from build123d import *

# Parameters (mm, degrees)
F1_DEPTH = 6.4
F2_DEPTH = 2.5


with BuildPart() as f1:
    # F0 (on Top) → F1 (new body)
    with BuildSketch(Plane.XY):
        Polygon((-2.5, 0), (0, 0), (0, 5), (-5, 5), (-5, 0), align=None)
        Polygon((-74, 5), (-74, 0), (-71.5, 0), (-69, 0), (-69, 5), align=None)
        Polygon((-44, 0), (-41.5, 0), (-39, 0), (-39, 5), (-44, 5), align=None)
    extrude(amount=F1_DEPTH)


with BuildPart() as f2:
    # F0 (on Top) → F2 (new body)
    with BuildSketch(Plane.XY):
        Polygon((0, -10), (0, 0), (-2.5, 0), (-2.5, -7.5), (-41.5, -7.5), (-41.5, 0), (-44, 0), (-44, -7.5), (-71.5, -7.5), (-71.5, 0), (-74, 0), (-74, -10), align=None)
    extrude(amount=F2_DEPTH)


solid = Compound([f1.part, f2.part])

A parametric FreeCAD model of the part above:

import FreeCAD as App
import Part
import Sketcher

V = App.Vector


def add_polygon(sketch, points):
    """Adds a closed chain of lines whose ends are joined by coincident constraints."""
    first, n = sketch.GeometryCount, len(points)
    for a, b in zip(points, points[1:] + points[:1]):
        sketch.addGeometry(Part.LineSegment(App.Vector(*a, 0), App.Vector(*b, 0)), False)
    for i in range(n):
        sketch.addConstraint(Sketcher.Constraint("Coincident", first + i, 2, first + (i + 1) % n, 1))

doc = App.newDocument("Part")
body = doc.addObject("PartDesign::Body", "Body")
body.AllowCompound = True

sketch1 = body.newObject("Sketcher::SketchObject", "Sketch")
sketch1.AttachmentSupport = (doc.getObject("XY_Plane"), [""])
sketch1.MapMode = "FlatFace"
add_polygon(sketch1, [(0, 0), (0, 5), (-5, 5), (-5, 0)])
add_polygon(sketch1, [(-74, 5), (-74, 0), (-69, 0), (-69, 5)])
add_polygon(sketch1, [(-44, 0), (-39, 0), (-39, 5), (-44, 5)])
sketch1.addConstraint(Sketcher.Constraint("Vertical", 0))
sketch1.addConstraint(Sketcher.Constraint("Horizontal", 1))
sketch1.addConstraint(Sketcher.Constraint("Vertical", 2))
sketch1.addConstraint(Sketcher.Constraint("Horizontal", 3))
sketch1.addConstraint(Sketcher.Constraint("Vertical", 4))
sketch1.addConstraint(Sketcher.Constraint("Horizontal", 5))
sketch1.addConstraint(Sketcher.Constraint("Vertical", 6))
sketch1.addConstraint(Sketcher.Constraint("Horizontal", 7))
sketch1.addConstraint(Sketcher.Constraint("Horizontal", 8))
sketch1.addConstraint(Sketcher.Constraint("Vertical", 9))
sketch1.addConstraint(Sketcher.Constraint("Horizontal", 10))
sketch1.addConstraint(Sketcher.Constraint("Vertical", 11))
sketch1.addConstraint(Sketcher.Constraint("Coincident", 3, 2, -1, 1))
sketch1.addConstraint(Sketcher.Constraint("PointOnObject", 4, 2, -1))
sketch1.addConstraint(Sketcher.Constraint("PointOnObject", 8, 2, -1))
sketch1.addConstraint(Sketcher.Constraint("Horizontal", 1, 2, 6, 2))
sketch1.addConstraint(Sketcher.Constraint("Horizontal", 7, 2, 9, 2))
sketch1.addConstraint(Sketcher.Constraint("Equal", 3, 5))
sketch1.addConstraint(Sketcher.Constraint("Equal", 7, 8))
sketch1.addConstraint(Sketcher.Constraint("Equal", 10, 0))
sketch1.addConstraint(Sketcher.Constraint("DistanceX", 1, 2, 1, 1, 5.0))
sketch1.addConstraint(Sketcher.Constraint("DistanceX", 4, 2, -1, 1, 74.0))
sketch1.addConstraint(Sketcher.Constraint("DistanceX", 8, 2, -1, 1, 39.0))
pad1 = body.newObject("PartDesign::Pad", "Pad")
pad1.Profile = sketch1
pad1.Length = 6.4
body2 = doc.addObject("PartDesign::Body", "Body001")

sketch2 = body2.newObject("Sketcher::SketchObject", "Sketch001")
sketch2.AttachmentSupport = (doc.getObject("XY_Plane001"), [""])
sketch2.MapMode = "FlatFace"
add_polygon(sketch2, [(0, -10), (0, 0), (-2.5, 0), (-2.5, -7.5), (-41.5, -7.5), (-41.5, 0), (-44, 0), (-44, -7.5), (-71.5, -7.5), (-71.5, 0), (-74, 0), (-74, -10)])
sketch2.addConstraint(Sketcher.Constraint("Vertical", 0))
sketch2.addConstraint(Sketcher.Constraint("Horizontal", 1))
sketch2.addConstraint(Sketcher.Constraint("Vertical", 2))
sketch2.addConstraint(Sketcher.Constraint("Horizontal", 3))
sketch2.addConstraint(Sketcher.Constraint("Vertical", 4))
sketch2.addConstraint(Sketcher.Constraint("Horizontal", 5))
sketch2.addConstraint(Sketcher.Constraint("Vertical", 6))
sketch2.addConstraint(Sketcher.Constraint("Horizontal", 7))
sketch2.addConstraint(Sketcher.Constraint("Vertical", 8))
sketch2.addConstraint(Sketcher.Constraint("Horizontal", 9))
sketch2.addConstraint(Sketcher.Constraint("Vertical", 10))
sketch2.addConstraint(Sketcher.Constraint("Horizontal", 11))
sketch2.addConstraint(Sketcher.Constraint("Coincident", 0, 2, -1, 1))
sketch2.addConstraint(Sketcher.Constraint("PointOnObject", 4, 2, -1))
sketch2.addConstraint(Sketcher.Constraint("PointOnObject", 8, 2, -1))
sketch2.addConstraint(Sketcher.Constraint("Horizontal", 3, 2, 6, 2))
sketch2.addConstraint(Sketcher.Constraint("Equal", 1, 5))
sketch2.addConstraint(Sketcher.Constraint("Equal", 5, 9))
sketch2.addConstraint(Sketcher.Constraint("DistanceX", 3, 2, 3, 1, 39.0))
sketch2.addConstraint(Sketcher.Constraint("DistanceX", 11, 1, 11, 2, 74.0))
sketch2.addConstraint(Sketcher.Constraint("DistanceY", 0, 1, 0, 2, 10.0))
sketch2.addConstraint(Sketcher.Constraint("DistanceX", 1, 2, 1, 1, 2.5))
sketch2.addConstraint(Sketcher.Constraint("DistanceY", 2, 2, 2, 1, 7.5))
pad2 = body2.newObject("PartDesign::Pad", "Pad001")
pad2.Profile = sketch2
pad2.Length = 2.5

doc.recompute()
